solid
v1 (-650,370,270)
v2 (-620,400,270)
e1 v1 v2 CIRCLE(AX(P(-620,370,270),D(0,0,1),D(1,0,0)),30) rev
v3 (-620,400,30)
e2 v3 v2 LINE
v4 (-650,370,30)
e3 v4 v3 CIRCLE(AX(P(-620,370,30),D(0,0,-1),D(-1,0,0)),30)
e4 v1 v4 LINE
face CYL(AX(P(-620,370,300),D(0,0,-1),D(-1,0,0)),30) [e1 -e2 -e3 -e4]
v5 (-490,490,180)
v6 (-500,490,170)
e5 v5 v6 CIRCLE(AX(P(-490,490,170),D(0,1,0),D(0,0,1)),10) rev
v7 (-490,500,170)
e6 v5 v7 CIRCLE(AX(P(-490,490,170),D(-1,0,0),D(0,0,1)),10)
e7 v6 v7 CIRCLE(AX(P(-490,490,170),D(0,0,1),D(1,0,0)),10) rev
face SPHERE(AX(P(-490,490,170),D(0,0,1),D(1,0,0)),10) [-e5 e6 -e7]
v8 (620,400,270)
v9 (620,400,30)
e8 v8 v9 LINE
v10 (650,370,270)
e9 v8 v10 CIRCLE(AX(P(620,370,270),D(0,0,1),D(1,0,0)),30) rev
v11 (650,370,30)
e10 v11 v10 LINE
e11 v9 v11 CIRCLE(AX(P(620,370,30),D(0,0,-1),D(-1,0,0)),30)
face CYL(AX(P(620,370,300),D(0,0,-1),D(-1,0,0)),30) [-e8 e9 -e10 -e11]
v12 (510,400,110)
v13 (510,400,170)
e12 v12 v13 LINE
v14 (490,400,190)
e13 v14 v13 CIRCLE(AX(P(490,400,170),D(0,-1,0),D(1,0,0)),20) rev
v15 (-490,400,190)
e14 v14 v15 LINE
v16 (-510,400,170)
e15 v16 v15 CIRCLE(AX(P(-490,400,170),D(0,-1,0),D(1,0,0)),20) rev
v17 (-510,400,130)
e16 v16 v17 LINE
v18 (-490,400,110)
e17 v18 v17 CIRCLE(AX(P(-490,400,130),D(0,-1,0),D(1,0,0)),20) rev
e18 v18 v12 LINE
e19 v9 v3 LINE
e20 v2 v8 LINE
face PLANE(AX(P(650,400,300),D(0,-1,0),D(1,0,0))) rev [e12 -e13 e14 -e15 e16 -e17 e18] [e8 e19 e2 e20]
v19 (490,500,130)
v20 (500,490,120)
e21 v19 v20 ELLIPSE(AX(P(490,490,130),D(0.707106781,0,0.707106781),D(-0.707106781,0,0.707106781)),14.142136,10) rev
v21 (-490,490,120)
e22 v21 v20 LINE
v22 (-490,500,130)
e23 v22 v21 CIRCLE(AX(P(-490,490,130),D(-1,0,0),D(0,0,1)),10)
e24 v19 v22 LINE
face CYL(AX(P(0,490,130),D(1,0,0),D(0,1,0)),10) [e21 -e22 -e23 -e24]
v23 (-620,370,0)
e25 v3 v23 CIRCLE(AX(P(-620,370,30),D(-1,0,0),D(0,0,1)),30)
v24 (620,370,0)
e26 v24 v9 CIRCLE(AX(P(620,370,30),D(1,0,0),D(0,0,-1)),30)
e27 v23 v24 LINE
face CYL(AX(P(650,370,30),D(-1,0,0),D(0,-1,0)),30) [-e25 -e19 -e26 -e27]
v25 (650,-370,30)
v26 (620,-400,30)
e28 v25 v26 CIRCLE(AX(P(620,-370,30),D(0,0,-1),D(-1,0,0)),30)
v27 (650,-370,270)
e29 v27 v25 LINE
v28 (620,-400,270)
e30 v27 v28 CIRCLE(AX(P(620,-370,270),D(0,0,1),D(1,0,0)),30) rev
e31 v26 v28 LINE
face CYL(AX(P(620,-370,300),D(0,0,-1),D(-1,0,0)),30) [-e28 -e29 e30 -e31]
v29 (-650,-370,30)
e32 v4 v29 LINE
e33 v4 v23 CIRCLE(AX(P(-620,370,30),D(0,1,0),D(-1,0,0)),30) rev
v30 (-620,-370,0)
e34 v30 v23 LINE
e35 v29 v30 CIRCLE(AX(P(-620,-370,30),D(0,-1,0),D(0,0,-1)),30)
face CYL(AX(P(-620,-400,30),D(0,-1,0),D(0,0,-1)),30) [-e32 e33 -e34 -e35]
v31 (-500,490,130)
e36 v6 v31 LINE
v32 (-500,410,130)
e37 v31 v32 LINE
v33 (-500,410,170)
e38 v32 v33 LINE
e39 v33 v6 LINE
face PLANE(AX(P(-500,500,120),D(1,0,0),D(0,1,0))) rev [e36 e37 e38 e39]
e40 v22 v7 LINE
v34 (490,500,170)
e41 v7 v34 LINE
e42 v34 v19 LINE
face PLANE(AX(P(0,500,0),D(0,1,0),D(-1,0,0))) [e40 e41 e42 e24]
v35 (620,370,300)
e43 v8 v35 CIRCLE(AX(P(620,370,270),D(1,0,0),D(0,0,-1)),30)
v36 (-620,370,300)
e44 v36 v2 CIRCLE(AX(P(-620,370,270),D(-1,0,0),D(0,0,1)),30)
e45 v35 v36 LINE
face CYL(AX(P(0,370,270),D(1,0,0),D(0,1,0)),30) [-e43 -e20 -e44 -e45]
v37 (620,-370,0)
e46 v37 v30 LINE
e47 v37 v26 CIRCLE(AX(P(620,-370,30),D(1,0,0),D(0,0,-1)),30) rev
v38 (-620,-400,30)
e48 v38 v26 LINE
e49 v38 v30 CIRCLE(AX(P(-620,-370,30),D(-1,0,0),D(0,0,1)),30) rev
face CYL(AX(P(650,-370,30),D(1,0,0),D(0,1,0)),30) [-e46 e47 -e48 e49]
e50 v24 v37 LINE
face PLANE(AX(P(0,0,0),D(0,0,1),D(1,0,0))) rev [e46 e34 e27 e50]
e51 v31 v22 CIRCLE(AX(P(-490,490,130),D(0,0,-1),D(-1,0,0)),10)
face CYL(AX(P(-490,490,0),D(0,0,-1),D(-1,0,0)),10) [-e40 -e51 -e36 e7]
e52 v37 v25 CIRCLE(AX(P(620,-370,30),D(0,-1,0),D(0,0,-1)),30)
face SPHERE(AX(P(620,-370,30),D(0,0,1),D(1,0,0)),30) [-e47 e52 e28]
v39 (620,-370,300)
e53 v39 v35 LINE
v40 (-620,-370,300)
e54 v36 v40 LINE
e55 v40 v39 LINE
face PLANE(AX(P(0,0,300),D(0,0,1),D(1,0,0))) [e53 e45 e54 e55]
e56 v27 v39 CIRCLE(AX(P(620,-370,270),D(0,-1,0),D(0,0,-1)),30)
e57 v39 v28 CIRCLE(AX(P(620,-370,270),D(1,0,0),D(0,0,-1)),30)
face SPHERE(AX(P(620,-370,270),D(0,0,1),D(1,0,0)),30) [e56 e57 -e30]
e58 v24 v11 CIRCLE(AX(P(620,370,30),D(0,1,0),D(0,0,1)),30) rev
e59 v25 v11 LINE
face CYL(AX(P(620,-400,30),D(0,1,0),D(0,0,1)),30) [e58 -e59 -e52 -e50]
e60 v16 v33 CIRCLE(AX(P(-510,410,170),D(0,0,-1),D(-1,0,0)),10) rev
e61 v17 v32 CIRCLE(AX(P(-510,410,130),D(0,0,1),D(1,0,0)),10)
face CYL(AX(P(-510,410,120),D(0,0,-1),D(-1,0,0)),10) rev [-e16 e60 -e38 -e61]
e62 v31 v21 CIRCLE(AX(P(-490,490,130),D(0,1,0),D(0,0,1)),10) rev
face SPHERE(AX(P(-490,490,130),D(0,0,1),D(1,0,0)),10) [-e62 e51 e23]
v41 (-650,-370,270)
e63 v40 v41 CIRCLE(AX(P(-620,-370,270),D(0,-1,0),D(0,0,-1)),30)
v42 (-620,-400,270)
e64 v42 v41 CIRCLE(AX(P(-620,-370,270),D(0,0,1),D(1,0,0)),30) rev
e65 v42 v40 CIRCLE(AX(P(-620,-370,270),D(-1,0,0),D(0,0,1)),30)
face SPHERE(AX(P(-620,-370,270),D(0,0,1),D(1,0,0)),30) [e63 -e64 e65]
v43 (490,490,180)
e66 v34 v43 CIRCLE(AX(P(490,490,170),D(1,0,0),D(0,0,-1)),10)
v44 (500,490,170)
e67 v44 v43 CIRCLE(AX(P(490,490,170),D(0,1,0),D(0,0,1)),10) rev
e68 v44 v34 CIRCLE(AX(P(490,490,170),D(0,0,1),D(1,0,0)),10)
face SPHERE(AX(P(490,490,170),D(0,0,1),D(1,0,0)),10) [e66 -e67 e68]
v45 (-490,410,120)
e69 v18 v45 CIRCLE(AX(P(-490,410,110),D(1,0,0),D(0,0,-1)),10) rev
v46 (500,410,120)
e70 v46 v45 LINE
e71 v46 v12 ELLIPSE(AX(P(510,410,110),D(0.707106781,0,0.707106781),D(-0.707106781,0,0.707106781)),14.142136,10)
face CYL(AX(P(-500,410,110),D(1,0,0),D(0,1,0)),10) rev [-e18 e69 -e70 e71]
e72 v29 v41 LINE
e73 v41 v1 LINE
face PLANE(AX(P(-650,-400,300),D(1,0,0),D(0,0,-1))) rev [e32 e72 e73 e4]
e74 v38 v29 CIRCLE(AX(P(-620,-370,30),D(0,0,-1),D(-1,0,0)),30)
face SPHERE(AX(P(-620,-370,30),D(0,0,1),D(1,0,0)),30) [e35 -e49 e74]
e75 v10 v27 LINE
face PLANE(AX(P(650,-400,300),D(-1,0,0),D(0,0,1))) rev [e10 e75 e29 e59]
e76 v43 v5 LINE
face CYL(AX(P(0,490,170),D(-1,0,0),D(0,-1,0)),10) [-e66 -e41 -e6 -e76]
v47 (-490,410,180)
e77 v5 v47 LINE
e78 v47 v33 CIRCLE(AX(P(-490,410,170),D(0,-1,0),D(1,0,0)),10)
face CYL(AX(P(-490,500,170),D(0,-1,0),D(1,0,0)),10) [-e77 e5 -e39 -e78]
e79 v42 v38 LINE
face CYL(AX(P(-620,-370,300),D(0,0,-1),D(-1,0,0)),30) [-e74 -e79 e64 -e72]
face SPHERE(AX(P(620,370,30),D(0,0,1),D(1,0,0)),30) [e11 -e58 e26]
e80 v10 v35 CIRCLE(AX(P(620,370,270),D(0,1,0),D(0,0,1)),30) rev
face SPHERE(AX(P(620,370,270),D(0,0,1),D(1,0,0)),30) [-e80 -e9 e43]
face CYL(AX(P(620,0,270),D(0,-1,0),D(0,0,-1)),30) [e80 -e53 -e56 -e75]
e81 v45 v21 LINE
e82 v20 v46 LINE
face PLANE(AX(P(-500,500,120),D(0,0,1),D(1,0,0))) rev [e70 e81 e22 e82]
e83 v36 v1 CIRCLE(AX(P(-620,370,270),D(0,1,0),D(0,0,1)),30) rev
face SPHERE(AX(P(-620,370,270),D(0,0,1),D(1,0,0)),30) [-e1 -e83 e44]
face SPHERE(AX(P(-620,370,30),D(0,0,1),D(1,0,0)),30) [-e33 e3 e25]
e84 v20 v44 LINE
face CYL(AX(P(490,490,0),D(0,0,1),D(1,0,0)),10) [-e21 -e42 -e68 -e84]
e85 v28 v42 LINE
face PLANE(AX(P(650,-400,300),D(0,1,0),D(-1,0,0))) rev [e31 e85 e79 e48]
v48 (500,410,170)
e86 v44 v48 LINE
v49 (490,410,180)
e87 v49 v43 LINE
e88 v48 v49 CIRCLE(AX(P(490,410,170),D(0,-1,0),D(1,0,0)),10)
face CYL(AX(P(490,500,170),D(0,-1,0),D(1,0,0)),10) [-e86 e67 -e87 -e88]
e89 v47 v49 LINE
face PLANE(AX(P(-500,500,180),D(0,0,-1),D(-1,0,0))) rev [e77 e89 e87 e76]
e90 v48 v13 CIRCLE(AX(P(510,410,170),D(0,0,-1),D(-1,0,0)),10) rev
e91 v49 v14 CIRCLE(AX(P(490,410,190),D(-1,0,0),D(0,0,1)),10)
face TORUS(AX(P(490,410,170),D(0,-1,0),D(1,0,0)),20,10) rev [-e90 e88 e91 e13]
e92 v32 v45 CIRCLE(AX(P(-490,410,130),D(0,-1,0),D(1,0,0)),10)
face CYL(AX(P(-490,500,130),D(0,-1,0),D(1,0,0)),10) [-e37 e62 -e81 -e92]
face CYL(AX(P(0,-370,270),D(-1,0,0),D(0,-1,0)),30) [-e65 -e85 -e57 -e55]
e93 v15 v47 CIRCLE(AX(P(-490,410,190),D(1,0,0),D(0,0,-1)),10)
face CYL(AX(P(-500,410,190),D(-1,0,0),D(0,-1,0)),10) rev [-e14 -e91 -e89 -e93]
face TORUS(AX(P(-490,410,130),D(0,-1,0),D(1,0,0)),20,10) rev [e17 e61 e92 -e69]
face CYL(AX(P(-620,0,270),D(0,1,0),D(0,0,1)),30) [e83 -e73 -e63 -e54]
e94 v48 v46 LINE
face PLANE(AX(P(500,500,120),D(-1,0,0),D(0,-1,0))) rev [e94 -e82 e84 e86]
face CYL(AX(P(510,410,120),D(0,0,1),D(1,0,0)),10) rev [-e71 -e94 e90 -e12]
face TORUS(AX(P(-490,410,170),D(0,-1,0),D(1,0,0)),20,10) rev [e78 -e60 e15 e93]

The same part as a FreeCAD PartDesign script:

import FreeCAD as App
import Part
import Sketcher
from FreeCAD import Vector


def edges_at(feature, points):
    """Names of the edges that pass closest to the given points."""
    edges = feature.Shape.Edges
    near = lambda p: min(range(len(edges)), key=lambda i: edges[i].distToShape(Part.Vertex(*p))[0])
    return sorted({f"Edge{near(p) + 1}" for p in points})

doc = App.newDocument("Part")
params = doc.addObject("Spreadsheet::Sheet", "Params")
for row, (alias, value) in enumerate([
    ("sketch1_width", "1300 mm"),
    ("sketch1_height", "800 mm"),
    ("pad1_length", "300 mm"),
    ("fillet_radius", "30 mm"),
    ("sketch2_width", "1000 mm"),
    ("sketch2_height", "60 mm"),
    ("pad2_length", "100 mm"),
    ("fillet2_radius", "10 mm"),
], start=1):
    params.set(f"A{row}", alias)
    params.set(f"B{row}", "=" + value)
    params.setAlias(f"B{row}", alias)

body = doc.addObject("PartDesign::Body", "Body")

sketch1 = body.newObject("Sketcher::SketchObject", "Sketch")
sketch1.AttachmentSupport = (doc.getObject("XY_Plane"), [""])
sketch1.MapMode = "FlatFace"
sketch1.addGeometry(Part.LineSegment(Vector(-650, 400, 0), Vector(-650, -400, 0)), False)
sketch1.addGeometry(Part.LineSegment(Vector(-650, -400, 0), Vector(650, -400, 0)), False)
sketch1.addGeometry(Part.LineSegment(Vector(650, -400, 0), Vector(650, 400, 0)), False)
sketch1.addGeometry(Part.LineSegment(Vector(650, 400, 0), Vector(-650, 400, 0)), False)
sketch1.addConstraint(Sketcher.Constraint("Coincident", 0, 2, 1, 1))
sketch1.addConstraint(Sketcher.Constraint("Coincident", 1, 2, 2, 1))
sketch1.addConstraint(Sketcher.Constraint("Coincident", 2, 2, 3, 1))
sketch1.addConstraint(Sketcher.Constraint("Coincident", 3, 2, 0, 1))
sketch1.addConstraint(Sketcher.Constraint("Vertical", 0))
sketch1.addConstraint(Sketcher.Constraint("Horizontal", 1))
sketch1.addConstraint(Sketcher.Constraint("Vertical", 2))
sketch1.addConstraint(Sketcher.Constraint("Horizontal", 3))
sketch1.addConstraint(Sketcher.Constraint("Symmetric", 0, 2, 2, 2, -1, 1))
sketch1.addConstraint(Sketcher.Constraint("DistanceX", 1, 1, 1, 2, 1300.0))
sketch1.addConstraint(Sketcher.Constraint("DistanceY", 0, 2, 0, 1, 800.0))
sketch1.setExpression("Constraints[9]", "Params.sketch1_width")
sketch1.setExpression("Constraints[10]", "Params.sketch1_height")
pad1 = body.newObject("PartDesign::Pad", "Pad")
pad1.Profile = sketch1
pad1.setExpression("Length", "Params.pad1_length")
doc.recompute()

fillet = body.newObject("PartDesign::Fillet", "Fillet")
fillet.Base = (pad1, ["Edge1"])
fillet.UseAllEdges = True
fillet.setExpression("Radius", "Params.fillet_radius")

sketch2 = body.newObject("Sketcher::SketchObject", "Sketch001")
sketch2.AttachmentSupport = (doc.getObject("XZ_Plane"), [""])
sketch2.MapMode = "FlatFace"
sketch2.AttachmentOffset = App.Placement(Vector(0, 0, -400), App.Rotation())
sketch2.addGeometry(Part.LineSegment(Vector(-500, 120, 0), Vector(-500, 180, 0)), False)
sketch2.addGeometry(Part.LineSegment(Vector(-500, 180, 0), Vector(500, 180, 0)), False)
sketch2.addGeometry(Part.LineSegment(Vector(500, 180, 0), Vector(500, 120, 0)), False)
sketch2.addGeometry(Part.LineSegment(Vector(500, 120, 0), Vector(-500, 120, 0)), False)
sketch2.addConstraint(Sketcher.Constraint("Coincident", 0, 2, 1, 1))
sketch2.addConstraint(Sketcher.Constraint("Coincident", 1, 2, 2, 1))
sketch2.addConstraint(Sketcher.Constraint("Coincident", 2, 2, 3, 1))
sketch2.addConstraint(Sketcher.Constraint("Coincident", 3, 2, 0, 1))
sketch2.addConstraint(Sketcher.Constraint("Vertical", 0))
sketch2.addConstraint(Sketcher.Constraint("Horizontal", 1))
sketch2.addConstraint(Sketcher.Constraint("Vertical", 2))
sketch2.addConstraint(Sketcher.Constraint("Horizontal", 3))
sketch2.addConstraint(Sketcher.Constraint("DistanceX", 1, 1, 1, 2, 1000.0))
sketch2.addConstraint(Sketcher.Constraint("DistanceY", 0, 1, 0, 2, 60.0))
sketch2.addConstraint(Sketcher.Constraint("DistanceX", 0, 2, -1, 1, 500.0))
sketch2.addConstraint(Sketcher.Constraint("DistanceY", -1, 1, 0, 2, 180.0))
sketch2.setExpression("Constraints[8]", "Params.sketch2_width")
sketch2.setExpression("Constraints[9]", "Params.sketch2_height")
pad2 = body.newObject("PartDesign::Pad", "Pad001")
pad2.Profile = sketch2
pad2.setExpression("Length", "Params.pad2_length")
pad2.Reversed = True
doc.recompute()

fillet2 = body.newObject("PartDesign::Fillet", "Fillet001")
fillet2.Base = (pad2, edges_at(pad2, [
    (-500, 400, 150),
    (-500, 450, 120),
    (0, 400, 180),
    (-500, 450, 180),
    (500, 400, 150),
    (500, 450, 180),
    (0, 400, 120),
    (-500, 500, 150),
    (0, 500, 180),
    (500, 500, 150),
    (0, 500, 120),
]))
fillet2.setExpression("Radius", "Params.fillet2_radius")

doc.recompute()
